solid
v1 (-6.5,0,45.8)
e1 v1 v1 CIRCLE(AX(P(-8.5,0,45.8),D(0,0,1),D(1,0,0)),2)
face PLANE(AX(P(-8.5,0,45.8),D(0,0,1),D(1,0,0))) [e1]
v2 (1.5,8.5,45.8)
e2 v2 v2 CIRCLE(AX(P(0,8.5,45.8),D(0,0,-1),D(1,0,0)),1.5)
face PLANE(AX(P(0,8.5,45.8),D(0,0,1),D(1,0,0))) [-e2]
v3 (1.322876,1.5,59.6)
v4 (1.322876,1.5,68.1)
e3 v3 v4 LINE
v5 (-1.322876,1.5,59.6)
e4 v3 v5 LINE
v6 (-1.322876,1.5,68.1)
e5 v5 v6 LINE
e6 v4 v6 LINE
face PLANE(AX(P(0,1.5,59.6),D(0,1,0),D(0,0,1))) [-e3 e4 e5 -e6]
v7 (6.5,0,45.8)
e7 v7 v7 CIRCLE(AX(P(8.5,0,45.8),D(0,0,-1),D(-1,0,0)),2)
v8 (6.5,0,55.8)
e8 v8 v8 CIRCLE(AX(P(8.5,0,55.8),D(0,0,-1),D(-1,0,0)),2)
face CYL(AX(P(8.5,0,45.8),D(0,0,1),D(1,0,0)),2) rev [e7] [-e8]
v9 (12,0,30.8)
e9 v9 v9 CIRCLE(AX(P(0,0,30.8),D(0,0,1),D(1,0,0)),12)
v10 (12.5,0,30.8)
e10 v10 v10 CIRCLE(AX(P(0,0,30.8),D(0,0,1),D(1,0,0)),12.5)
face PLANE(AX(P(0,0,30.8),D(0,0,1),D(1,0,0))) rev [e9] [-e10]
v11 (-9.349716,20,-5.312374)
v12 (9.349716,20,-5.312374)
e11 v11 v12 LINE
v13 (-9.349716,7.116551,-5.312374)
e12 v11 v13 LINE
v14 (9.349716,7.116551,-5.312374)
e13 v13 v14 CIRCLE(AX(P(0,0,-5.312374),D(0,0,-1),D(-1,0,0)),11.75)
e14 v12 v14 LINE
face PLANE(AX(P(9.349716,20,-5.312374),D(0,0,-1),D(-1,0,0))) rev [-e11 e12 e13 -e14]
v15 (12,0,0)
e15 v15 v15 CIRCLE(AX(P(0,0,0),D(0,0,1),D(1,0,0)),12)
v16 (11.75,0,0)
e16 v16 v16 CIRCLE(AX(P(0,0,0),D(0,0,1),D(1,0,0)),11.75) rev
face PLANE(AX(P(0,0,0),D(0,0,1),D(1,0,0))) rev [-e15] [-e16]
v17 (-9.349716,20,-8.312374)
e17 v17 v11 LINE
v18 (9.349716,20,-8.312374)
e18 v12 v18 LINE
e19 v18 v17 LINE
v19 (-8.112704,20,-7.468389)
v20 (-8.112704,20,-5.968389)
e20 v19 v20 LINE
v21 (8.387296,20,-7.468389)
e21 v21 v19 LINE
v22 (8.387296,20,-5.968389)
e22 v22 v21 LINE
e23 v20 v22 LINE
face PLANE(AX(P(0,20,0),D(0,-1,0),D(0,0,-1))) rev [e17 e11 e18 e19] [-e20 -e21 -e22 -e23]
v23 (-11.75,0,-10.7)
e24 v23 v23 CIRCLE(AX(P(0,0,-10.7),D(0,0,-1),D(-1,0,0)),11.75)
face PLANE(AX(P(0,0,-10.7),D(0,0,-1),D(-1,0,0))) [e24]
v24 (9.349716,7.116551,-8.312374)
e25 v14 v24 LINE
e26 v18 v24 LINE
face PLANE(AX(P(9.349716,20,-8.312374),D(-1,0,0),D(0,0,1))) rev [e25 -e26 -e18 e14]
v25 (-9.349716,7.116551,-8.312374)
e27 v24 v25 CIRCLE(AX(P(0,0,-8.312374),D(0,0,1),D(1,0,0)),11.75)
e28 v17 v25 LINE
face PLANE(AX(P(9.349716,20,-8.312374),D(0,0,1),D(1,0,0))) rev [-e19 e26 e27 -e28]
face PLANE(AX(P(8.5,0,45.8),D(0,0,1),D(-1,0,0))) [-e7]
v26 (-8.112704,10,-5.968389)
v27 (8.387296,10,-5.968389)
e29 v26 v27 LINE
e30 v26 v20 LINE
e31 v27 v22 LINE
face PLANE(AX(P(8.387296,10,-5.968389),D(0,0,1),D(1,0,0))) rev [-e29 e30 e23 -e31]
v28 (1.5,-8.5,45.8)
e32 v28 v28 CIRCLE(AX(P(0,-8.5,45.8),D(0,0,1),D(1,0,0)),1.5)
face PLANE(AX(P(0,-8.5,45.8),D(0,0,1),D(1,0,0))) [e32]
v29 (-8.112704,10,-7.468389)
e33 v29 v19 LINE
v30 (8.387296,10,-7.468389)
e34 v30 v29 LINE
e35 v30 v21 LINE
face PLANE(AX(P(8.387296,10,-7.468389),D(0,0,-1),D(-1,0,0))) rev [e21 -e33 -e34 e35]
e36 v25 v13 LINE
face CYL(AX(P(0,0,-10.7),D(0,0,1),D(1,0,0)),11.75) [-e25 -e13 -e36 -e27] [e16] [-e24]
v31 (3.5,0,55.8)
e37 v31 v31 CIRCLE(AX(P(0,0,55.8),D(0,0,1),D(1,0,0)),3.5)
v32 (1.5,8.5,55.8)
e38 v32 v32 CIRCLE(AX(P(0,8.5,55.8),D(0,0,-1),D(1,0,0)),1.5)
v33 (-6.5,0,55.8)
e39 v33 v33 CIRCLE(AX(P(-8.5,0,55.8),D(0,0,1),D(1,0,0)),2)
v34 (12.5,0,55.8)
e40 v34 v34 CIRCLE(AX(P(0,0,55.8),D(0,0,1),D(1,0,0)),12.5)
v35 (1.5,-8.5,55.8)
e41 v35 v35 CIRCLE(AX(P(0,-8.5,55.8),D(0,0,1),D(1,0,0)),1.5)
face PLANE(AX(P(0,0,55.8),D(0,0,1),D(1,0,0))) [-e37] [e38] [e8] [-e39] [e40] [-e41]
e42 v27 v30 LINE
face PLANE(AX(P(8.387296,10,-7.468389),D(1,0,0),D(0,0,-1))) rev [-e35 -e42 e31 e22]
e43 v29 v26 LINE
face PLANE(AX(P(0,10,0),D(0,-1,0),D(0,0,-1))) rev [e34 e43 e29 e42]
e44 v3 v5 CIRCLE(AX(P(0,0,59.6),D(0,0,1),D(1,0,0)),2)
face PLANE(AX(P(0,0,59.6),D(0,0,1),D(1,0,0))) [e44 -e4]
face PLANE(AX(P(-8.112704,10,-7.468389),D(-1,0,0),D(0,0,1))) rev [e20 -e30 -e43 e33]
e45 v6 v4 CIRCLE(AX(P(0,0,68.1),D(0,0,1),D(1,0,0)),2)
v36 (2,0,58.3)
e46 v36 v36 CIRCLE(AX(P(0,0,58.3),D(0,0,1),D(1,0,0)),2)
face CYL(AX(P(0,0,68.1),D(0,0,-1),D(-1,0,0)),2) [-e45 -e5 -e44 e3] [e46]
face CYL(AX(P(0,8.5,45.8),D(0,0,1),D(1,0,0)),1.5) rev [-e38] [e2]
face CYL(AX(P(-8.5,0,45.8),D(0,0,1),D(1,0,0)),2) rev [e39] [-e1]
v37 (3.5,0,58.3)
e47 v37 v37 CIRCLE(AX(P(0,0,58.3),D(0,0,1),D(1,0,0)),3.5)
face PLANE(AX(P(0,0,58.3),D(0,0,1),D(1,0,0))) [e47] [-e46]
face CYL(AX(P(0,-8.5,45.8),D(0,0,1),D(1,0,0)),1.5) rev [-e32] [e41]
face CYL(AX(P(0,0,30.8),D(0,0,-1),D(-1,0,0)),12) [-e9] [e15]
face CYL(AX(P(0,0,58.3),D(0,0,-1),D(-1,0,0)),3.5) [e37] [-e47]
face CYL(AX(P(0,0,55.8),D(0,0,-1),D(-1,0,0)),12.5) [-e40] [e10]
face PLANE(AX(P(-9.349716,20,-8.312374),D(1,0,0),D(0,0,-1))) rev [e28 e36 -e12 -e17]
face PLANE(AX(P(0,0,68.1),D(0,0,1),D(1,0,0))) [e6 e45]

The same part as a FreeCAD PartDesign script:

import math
import FreeCAD as App
import Part
import Sketcher

V = App.Vector

doc = App.newDocument("Part")
body = doc.addObject("PartDesign::Body", "Body")

# Sketch on XY plane
sketch1 = body.newObject("Sketcher::SketchObject", "Sketch")
sketch1.AttachmentSupport = (doc.getObject("XY_Plane"), [""])
sketch1.MapMode = "FlatFace"
sketch1.addGeometry(Part.Circle(V(0, 0, 0), V(0, 0, 1), 12), False)
sketch1.addConstraint([
    Sketcher.Constraint("Coincident", 0, 3, -1, 1),
    Sketcher.Constraint("Diameter", 0, 24.0),
])
pad1 = body.newObject("PartDesign::Pad", "Pad")
pad1.Profile = sketch1
pad1.Length = 30.8

# Sketch on XY plane
sketch2 = body.newObject("Sketcher::SketchObject", "Sketch001")
sketch2.AttachmentSupport = (doc.getObject("XY_Plane"), [""])
sketch2.MapMode = "FlatFace"
sketch2.AttachmentOffset = App.Placement(V(0, 0, 30.8), App.Rotation())
sketch2.addGeometry(Part.Circle(V(0, 0, 0), V(0, 0, 1), 12), False)
sketch2.addConstraint([
    Sketcher.Constraint("Coincident", 0, 3, -1, 1),
    Sketcher.Constraint("Diameter", 0, 25.0),
])
pad2 = body.newObject("PartDesign::Pad", "Pad001")
pad2.Profile = sketch2
pad2.Length = 25

# Sketch on XY plane
sketch3 = body.newObject("Sketcher::SketchObject", "Sketch002")
sketch3.AttachmentSupport = (doc.getObject("XY_Plane"), [""])
sketch3.MapMode = "FlatFace"
sketch3.AttachmentOffset = App.Placement(V(0, 0, 55.8), App.Rotation())
sketch3.addGeometry(Part.Circle(V(0, 0, 0), V(0, 0, 1), 3.5), False)
sketch3.addConstraint([
    Sketcher.Constraint("Coincident", 0, 3, -1, 1),
    Sketcher.Constraint("Diameter", 0, 7.0),
])
pad3 = body.newObject("PartDesign::Pad", "Pad002")
pad3.Profile = sketch3
pad3.Length = 2.5

# Sketch on XY plane
sketch4 = body.newObject("Sketcher::SketchObject", "Sketch003")
sketch4.AttachmentSupport = (doc.getObject("XY_Plane"), [""])
sketch4.MapMode = "FlatFace"
sketch4.AttachmentOffset = App.Placement(V(0, 0, 58.3), App.Rotation())
sketch4.addGeometry(Part.Circle(V(0, 0, 0), V(0, 0, 1), 2), False)
sketch4.addConstraint([
    Sketcher.Constraint("Coincident", 0, 3, -1, 1),
    Sketcher.Constraint("Diameter", 0, 4.0),
])
pad4 = body.newObject("PartDesign::Pad", "Pad003")
pad4.Profile = sketch4
pad4.Length = 9.8

# Sketch on XY plane
sketch5 = body.newObject("Sketcher::SketchObject", "Sketch004")
sketch5.AttachmentSupport = (doc.getObject("XY_Plane"), [""])
sketch5.MapMode = "FlatFace"
sketch5.AttachmentOffset = App.Placement(V(0, 0, 68.1), App.Rotation())
sketch5.addGeometry([
    Part.LineSegment(V(-1.3, 1.5, 0), V(1.3, 1.5, 0)),
    Part.ArcOfCircle(Part.Circle(V(0, 0, 0), V(0, 0, 1), 2), math.radians(49), math.radians(131)),
], False)
sketch5.addConstraint([
    Sketcher.Constraint("Coincident", 0, 1, 1, 2),
    Sketcher.Constraint("Coincident", 1, 1, 0, 2),
    Sketcher.Constraint("Horizontal", 0),
    Sketcher.Constraint("Coincident", 1, 3, -1, 1),
    Sketcher.Constraint("Radius", 1, 2.0),
    Sketcher.Constraint("DistanceY", -1, 1, 0, 1, 1.5),
])
pocket1 = body.newObject("PartDesign::Pocket", "Pocket")
pocket1.Profile = sketch5
pocket1.Length = 8.5

# Sketch on XY plane
sketch6 = body.newObject("Sketcher::SketchObject", "Sketch005")
sketch6.AttachmentSupport = (doc.getObject("XY_Plane"), [""])
sketch6.MapMode = "FlatFace"
sketch6.addGeometry(Part.Circle(V(0, 0, 0), V(0, 0, 1), 12), False)
sketch6.addConstraint([
    Sketcher.Constraint("Coincident", 0, 3, -1, 1),
    Sketcher.Constraint("Diameter", 0, 23.5),
])
pad5 = body.newObject("PartDesign::Pad", "Pad004")
pad5.Profile = sketch6
pad5.Length = 10.7
pad5.Reversed = True

# Sketch on XZ plane
sketch7 = body.newObject("Sketcher::SketchObject", "Sketch006")
sketch7.AttachmentSupport = (doc.getObject("XZ_Plane"), [""])
sketch7.MapMode = "FlatFace"
sketch7.addGeometry([
    Part.LineSegment(V(-9.3, -8.3, 0), V(-9.3, -5.3, 0)),
    Part.LineSegment(V(-9.3, -5.3, 0), V(9.3, -5.3, 0)),
    Part.LineSegment(V(9.3, -5.3, 0), V(9.3, -8.3, 0)),
    Part.LineSegment(V(9.3, -8.3, 0), V(-9.3, -8.3, 0)),
], False)
sketch7.addConstraint([
    Sketcher.Constraint("Coincident", 0, 2, 1, 1),
    Sketcher.Constraint("Coincident", 1, 2, 2, 1),
    Sketcher.Constraint("Coincident", 2, 2, 3, 1),
    Sketcher.Constraint("Coincident", 3, 2, 0, 1),
    Sketcher.Constraint("Vertical", 0),
    Sketcher.Constraint("Horizontal", 1),
    Sketcher.Constraint("Vertical", 2),
    Sketcher.Constraint("Horizontal", 3),
    Sketcher.Constraint("DistanceY", 0, 1, 0, 2, 3.0),
    Sketcher.Constraint("DistanceX", 1, 1, 1, 2, 18.699433),
    Sketcher.Constraint("DistanceX", 0, 2, -1, 1, 9.349716),
    Sketcher.Constraint("DistanceY", 0, 2, -1, 1, 5.312374),
])
pad6 = body.newObject("PartDesign::Pad", "Pad005")
pad6.Profile = sketch7
pad6.Length = 20
pad6.Reversed = True

# Sketch on XY plane
sketch8 = body.newObject("Sketcher::SketchObject", "Sketch007")
sketch8.AttachmentSupport = (doc.getObject("XY_Plane"), [""])
sketch8.MapMode = "FlatFace"
sketch8.AttachmentOffset = App.Placement(V(0, 0, 55.8), App.Rotation())
sketch8.addGeometry(Part.Circle(V(0, -8.5, 0), V(0, 0, 1), 1.5), False)
sketch8.addConstraint([
    Sketcher.Constraint("PointOnObject", 0, 3, -2),
    Sketcher.Constraint("Diameter", 0, 3.0),
    Sketcher.Constraint("DistanceY", 0, 3, -1, 1, 8.5),
])
pocket2 = body.newObject("PartDesign::Pocket", "Pocket001")
pocket2.Profile = sketch8
pocket2.Length = 10
doc.recompute()

mirrored = body.newObject("PartDesign::Mirrored", "Mirrored")
mirrored.Originals = [pocket2]
mirrored.MirrorPlane = (doc.getObject("XZ_Plane"), [""])
body.Tip = mirrored

# Sketch on XY plane
sketch9 = body.newObject("Sketcher::SketchObject", "Sketch008")
sketch9.AttachmentSupport = (doc.getObject("XY_Plane"), [""])
sketch9.MapMode = "FlatFace"
sketch9.AttachmentOffset = App.Placement(V(0, 0, 55.8), App.Rotation())
sketch9.addGeometry(Part.Circle(V(-8.5, 0, 0), V(0, 0, 1), 2), False)
sketch9.addConstraint([
    Sketcher.Constraint("PointOnObject", 0, 3, -1),
    Sketcher.Constraint("Diameter", 0, 4.0),
    Sketcher.Constraint("DistanceX", 0, 3, -1, 1, 8.5),
])
pocket3 = body.newObject("PartDesign::Pocket", "Pocket002")
pocket3.Profile = sketch9
pocket3.Length = 10
doc.recompute()

mirrored2 = body.newObject("PartDesign::Mirrored", "Mirrored001")
mirrored2.Originals = [pocket3]
mirrored2.MirrorPlane = (doc.getObject("YZ_Plane"), [""])
body.Tip = mirrored2

# Sketch on XZ plane
sketch10 = body.newObject("Sketcher::SketchObject", "Sketch009")
sketch10.AttachmentSupport = (doc.getObject("XZ_Plane"), [""])
sketch10.MapMode = "FlatFace"
sketch10.AttachmentOffset = App.Placement(V(0, 0, -20), App.Rotation())
sketch10.addGeometry([
    Part.LineSegment(V(-8.1, -7.5, 0), V(-8.1, -6, 0)),
    Part.LineSegment(V(-8.1, -6, 0), V(8.4, -6, 0)),
    Part.LineSegment(V(8.4, -6, 0), V(8.4, -7.5, 0)),
    Part.LineSegment(V(8.4, -7.5, 0), V(-8.1, -7.5, 0)),
], False)
sketch10.addConstraint([
    Sketcher.Constraint("Coincident", 0, 2, 1, 1),
    Sketcher.Constraint("Coincident", 1, 2, 2, 1),
    Sketcher.Constraint("Coincident", 2, 2, 3, 1),
    Sketcher.Constraint("Coincident", 3, 2, 0, 1),
    Sketcher.Constraint("Vertical", 0),
    Sketcher.Constraint("Horizontal", 1),
    Sketcher.Constraint("Vertical", 2),
    Sketcher.Constraint("Horizontal", 3),
    Sketcher.Constraint("DistanceX", 1, 1, 1, 2, 16.5),
    Sketcher.Constraint("DistanceY", 0, 1, 0, 2, 1.5),
    Sketcher.Constraint("DistanceY", 0, 2, -1, 1, 5.968389),
    Sketcher.Constraint("DistanceX", 0, 2, -1, 1, 8.112704),
])
pocket4 = body.newObject("PartDesign::Pocket", "Pocket003")
pocket4.Profile = sketch10
pocket4.Length = 10
pocket4.Reversed = True

doc.recompute()
